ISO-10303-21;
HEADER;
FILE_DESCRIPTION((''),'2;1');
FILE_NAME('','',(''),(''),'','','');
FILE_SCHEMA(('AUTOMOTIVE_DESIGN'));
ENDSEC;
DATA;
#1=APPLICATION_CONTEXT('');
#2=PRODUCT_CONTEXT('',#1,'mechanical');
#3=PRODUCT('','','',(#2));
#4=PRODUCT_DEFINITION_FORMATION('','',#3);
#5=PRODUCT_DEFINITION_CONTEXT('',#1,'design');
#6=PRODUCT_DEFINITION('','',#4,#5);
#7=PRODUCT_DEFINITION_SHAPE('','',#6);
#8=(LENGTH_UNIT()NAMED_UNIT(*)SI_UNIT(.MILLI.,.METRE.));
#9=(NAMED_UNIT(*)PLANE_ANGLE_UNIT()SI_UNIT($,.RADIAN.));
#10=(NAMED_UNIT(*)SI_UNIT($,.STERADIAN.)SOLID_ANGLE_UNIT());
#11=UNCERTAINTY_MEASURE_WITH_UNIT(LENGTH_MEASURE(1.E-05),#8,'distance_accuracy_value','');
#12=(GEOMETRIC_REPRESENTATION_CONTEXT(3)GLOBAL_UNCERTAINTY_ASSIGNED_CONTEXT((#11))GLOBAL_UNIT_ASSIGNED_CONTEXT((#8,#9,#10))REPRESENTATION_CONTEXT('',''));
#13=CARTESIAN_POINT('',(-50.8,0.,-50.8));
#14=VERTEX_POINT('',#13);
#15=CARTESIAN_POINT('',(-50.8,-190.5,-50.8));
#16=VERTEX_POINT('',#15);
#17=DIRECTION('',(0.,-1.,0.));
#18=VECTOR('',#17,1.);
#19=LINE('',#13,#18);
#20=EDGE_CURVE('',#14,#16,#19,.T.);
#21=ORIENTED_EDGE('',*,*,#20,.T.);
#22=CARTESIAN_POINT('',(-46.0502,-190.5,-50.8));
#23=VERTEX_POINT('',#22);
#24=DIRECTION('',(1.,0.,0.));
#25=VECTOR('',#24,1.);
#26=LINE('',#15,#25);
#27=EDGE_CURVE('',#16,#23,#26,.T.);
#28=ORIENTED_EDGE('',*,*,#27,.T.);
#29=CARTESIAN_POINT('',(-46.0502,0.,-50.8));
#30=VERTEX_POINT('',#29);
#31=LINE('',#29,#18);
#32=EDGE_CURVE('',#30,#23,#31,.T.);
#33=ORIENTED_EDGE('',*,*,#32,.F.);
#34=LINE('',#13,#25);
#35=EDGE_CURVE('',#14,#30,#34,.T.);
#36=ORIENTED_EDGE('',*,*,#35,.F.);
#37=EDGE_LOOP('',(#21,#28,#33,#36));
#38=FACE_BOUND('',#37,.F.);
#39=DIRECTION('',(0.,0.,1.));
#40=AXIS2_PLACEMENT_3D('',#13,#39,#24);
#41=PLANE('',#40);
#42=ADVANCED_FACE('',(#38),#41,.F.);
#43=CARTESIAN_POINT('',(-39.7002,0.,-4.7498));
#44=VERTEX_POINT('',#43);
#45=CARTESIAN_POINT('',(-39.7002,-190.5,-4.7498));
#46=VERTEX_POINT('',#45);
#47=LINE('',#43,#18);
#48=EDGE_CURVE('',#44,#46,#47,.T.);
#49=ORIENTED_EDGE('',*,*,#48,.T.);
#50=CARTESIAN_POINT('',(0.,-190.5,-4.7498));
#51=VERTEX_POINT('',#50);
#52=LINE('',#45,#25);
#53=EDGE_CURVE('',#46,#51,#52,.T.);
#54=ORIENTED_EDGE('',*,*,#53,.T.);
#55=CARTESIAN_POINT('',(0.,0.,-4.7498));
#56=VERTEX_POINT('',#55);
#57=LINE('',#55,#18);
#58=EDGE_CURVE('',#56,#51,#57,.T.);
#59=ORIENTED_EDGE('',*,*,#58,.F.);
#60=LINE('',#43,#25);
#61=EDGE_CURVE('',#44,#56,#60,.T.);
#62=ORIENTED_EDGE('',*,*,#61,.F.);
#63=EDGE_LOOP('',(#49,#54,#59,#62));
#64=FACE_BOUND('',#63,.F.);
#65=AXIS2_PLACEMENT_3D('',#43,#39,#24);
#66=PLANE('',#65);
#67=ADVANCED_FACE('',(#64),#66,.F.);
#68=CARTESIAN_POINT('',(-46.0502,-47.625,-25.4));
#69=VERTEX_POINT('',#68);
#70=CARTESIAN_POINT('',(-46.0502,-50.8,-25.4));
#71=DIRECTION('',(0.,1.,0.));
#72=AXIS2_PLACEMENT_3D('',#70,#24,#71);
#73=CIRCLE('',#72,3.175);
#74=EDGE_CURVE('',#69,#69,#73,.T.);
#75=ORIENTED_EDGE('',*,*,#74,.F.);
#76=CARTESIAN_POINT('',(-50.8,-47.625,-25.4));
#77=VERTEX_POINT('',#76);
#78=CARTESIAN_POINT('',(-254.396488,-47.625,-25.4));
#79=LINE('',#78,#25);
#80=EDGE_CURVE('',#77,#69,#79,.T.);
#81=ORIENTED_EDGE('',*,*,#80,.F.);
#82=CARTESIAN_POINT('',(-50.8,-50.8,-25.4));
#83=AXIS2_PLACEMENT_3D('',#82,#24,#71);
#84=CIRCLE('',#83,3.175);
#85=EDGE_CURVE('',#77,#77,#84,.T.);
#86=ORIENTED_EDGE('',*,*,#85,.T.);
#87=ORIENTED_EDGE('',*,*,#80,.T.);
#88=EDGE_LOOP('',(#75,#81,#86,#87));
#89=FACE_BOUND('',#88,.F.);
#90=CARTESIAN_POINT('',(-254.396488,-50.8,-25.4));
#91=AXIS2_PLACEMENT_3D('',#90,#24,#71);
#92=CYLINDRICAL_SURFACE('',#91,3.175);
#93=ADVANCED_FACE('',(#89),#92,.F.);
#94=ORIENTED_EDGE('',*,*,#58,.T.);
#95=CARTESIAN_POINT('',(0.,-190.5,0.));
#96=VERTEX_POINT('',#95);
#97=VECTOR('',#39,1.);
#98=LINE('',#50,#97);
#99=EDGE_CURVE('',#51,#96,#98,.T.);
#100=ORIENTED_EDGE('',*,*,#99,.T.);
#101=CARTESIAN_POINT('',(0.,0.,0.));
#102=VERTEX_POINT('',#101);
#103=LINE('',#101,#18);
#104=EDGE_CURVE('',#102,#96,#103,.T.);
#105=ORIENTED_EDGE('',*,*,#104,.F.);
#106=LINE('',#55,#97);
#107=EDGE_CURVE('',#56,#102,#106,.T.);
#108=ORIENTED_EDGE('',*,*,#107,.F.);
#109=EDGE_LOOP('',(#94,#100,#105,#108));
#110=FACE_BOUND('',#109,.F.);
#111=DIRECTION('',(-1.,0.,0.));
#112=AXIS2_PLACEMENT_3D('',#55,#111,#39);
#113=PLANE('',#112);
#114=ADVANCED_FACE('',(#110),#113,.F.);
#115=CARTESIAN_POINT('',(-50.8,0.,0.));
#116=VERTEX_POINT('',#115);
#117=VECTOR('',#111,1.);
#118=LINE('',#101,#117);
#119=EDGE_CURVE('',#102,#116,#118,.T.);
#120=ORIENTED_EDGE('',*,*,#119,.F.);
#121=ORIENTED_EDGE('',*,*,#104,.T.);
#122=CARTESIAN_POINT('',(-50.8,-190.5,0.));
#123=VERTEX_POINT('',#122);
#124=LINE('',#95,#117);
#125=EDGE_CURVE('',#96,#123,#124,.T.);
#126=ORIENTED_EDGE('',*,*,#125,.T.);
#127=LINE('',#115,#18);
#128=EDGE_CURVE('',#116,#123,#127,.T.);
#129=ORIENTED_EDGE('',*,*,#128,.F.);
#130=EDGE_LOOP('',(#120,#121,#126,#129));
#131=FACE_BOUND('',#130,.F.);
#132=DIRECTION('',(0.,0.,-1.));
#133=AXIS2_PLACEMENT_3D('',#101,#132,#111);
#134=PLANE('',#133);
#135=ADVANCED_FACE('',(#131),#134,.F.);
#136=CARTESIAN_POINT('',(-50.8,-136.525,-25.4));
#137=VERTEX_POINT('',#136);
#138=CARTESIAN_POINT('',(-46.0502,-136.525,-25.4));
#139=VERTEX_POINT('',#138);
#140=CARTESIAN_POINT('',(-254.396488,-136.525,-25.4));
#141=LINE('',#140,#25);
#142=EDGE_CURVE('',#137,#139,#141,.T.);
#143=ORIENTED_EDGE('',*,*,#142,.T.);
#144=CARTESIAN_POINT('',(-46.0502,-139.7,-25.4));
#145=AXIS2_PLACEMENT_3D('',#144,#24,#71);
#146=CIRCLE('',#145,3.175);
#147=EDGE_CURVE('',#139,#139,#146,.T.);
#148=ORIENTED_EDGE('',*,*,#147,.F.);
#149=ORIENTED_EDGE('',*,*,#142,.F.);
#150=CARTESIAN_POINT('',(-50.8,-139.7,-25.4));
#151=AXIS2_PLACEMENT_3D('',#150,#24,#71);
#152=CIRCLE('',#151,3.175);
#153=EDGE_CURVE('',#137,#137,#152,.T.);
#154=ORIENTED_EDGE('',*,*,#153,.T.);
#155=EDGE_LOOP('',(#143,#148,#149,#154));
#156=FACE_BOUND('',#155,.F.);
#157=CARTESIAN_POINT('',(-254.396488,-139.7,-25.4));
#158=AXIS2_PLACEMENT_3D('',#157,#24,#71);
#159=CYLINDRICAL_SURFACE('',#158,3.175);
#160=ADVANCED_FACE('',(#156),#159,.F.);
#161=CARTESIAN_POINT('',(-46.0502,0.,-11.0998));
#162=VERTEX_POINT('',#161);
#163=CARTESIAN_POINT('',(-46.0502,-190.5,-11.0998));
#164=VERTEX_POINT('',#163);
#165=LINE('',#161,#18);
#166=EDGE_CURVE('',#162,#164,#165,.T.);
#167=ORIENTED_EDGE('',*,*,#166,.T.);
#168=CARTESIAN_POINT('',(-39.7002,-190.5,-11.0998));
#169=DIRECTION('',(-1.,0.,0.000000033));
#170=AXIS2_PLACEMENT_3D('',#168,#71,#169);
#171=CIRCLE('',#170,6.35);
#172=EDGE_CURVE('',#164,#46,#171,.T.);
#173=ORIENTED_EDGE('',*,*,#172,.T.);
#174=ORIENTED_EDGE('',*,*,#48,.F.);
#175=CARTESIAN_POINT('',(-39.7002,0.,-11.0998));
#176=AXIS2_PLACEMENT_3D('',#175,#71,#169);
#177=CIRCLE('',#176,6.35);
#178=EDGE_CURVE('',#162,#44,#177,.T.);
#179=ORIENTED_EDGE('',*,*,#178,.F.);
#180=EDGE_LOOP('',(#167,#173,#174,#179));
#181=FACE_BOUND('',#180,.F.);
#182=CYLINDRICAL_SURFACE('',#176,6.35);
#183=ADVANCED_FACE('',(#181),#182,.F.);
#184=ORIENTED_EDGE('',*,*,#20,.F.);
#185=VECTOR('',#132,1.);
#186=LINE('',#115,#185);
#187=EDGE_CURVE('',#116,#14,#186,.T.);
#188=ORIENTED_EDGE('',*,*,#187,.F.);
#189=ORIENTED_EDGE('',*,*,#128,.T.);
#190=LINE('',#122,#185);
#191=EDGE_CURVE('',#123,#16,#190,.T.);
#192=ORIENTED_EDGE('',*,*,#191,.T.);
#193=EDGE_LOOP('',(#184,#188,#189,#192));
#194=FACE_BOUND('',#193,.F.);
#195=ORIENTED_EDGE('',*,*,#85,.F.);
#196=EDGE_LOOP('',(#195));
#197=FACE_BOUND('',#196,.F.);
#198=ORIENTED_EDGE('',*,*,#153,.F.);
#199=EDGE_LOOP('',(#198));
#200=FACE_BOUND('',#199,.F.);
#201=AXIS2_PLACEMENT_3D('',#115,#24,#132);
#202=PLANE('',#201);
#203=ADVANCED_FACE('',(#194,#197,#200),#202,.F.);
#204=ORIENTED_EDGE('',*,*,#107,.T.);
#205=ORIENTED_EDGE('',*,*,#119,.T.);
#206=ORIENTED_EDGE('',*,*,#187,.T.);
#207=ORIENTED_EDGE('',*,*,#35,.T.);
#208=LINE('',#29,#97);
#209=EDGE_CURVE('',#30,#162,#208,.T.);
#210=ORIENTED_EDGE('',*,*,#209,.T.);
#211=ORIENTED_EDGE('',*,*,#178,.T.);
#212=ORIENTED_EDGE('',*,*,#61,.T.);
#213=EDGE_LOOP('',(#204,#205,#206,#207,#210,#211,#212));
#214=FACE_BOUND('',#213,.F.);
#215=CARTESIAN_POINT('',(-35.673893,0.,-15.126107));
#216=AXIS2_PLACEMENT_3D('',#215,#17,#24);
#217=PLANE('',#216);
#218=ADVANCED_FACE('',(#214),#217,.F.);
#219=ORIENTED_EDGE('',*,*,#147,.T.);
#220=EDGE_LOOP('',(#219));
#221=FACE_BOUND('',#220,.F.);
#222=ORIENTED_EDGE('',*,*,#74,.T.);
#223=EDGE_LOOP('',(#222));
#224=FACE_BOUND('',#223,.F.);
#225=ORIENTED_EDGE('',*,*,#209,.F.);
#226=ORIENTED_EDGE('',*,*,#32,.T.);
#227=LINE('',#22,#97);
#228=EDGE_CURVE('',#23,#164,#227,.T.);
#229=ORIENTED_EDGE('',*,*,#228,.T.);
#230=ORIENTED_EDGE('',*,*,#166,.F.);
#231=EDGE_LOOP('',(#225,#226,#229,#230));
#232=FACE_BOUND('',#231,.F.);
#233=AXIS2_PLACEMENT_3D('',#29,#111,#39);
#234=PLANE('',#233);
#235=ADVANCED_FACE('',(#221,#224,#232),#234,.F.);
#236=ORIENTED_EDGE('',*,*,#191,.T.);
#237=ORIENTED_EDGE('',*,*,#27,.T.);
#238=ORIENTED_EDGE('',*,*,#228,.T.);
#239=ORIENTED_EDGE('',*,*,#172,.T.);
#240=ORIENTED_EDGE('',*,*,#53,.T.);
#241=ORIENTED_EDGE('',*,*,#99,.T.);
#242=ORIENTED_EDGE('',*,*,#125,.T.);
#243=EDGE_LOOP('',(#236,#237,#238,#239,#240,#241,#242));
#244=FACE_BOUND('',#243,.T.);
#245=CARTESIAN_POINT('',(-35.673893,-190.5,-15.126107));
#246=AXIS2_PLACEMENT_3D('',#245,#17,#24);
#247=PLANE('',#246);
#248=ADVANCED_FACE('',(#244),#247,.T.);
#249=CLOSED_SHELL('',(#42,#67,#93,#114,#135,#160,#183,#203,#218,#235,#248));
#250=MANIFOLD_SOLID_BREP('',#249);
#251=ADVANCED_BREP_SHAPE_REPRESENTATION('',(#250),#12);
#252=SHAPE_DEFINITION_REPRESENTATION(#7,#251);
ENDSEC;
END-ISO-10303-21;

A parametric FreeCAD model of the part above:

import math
import FreeCAD as App
import Part
import Sketcher

V = App.Vector
Q = App.Units.Quantity

doc = App.newDocument("Part")
body = doc.addObject("PartDesign::Body", "Body")

# Sketch on XZ plane
sketch1 = body.newObject("Sketcher::SketchObject", "Sketch")
sketch1.AttachmentSupport = (doc.getObject("XZ_Plane"), [""])
sketch1.MapMode = "FlatFace"
sketch1.addGeometry([
    Part.LineSegment(V(0, -4.7, 0), V(0, 0, 0)),  # 0
    Part.LineSegment(V(0, 0, 0), V(-50.8, 0, 0)),  # 1
    Part.LineSegment(V(-50.8, 0, 0), V(-50.8, -50.8, 0)),  # 2
    Part.LineSegment(V(-50.8, -50.8, 0), V(-46.1, -50.8, 0)),  # 3
    Part.LineSegment(V(-46.1, -50.8, 0), V(-46.1, -11.1, 0)),  # 4
    Part.ArcOfCircle(Part.Circle(V(-39.7, -11.1, 0), V(0, 0, 1), 6.4), math.radians(90), math.radians(180)),  # 5
    Part.LineSegment(V(-39.7, -4.7, 0), V(0, -4.7, 0)),  # 6
], False)
sketch1.addConstraint([
    Sketcher.Constraint("Coincident", 0, 2, 1, 1),
    Sketcher.Constraint("Coincident", 1, 2, 2, 1),
    Sketcher.Constraint("Coincident", 2, 2, 3, 1),
    Sketcher.Constraint("Coincident", 3, 2, 4, 1),
    Sketcher.Constraint("Tangent", 4, 2, 5, 2),
    Sketcher.Constraint("Tangent", 5, 1, 6, 1),
    Sketcher.Constraint("Coincident", 6, 2, 0, 1),
    Sketcher.Constraint("Vertical", 0),
    Sketcher.Constraint("Horizontal", 1),
    Sketcher.Constraint("Vertical", 2),
    Sketcher.Constraint("Horizontal", 3),
    Sketcher.Constraint("Vertical", 4),
    Sketcher.Constraint("Horizontal", 6),
    Sketcher.Constraint("Coincident", 0, 2, -1, 1),
    Sketcher.Constraint("Equal", 3, 0),
    Sketcher.Constraint("Equal", 1, 2),
    Sketcher.Constraint("DistanceX", 1, 2, 1, 1, Q("2 in")),
    Sketcher.Constraint("Radius", 5, Q("0.25 in")),
    Sketcher.Constraint("DistanceX", 3, 1, 3, 2, Q("0.187 in")),
])
pad1 = body.newObject("PartDesign::Pad", "Pad")
pad1.Profile = sketch1
pad1.Length = Q("7.5 in")

# Sketch on YZ plane
sketch2 = body.newObject("Sketcher::SketchObject", "Sketch001")
sketch2.AttachmentSupport = (doc.getObject("YZ_Plane"), [""])
sketch2.MapMode = "FlatFace"
sketch2.AttachmentOffset = App.Placement(V(0, 0, -2 * 25.4), App.Rotation())
sketch2.addGeometry([
    Part.Circle(V(-50.8, -25.4, 0), V(0, 0, 1), 3.2),
    Part.Circle(V(-139.7, -25.4, 0), V(0, 0, 1), 3.2),
], False)
sketch2.addConstraint([
    Sketcher.Constraint("Equal", 0, 1),
    Sketcher.Constraint("Horizontal", 0, 3, 1, 3),
    Sketcher.Constraint("Diameter", 0, Q("0.25 in")),
    Sketcher.Constraint("DistanceX", 0, 3, -1, 1, Q("2 in")),
    Sketcher.Constraint("DistanceY", 0, 3, -1, 1, Q("1 in")),
    Sketcher.Constraint("DistanceX", 1, 3, -1, 1, Q("5.5 in")),
])
doc.recompute()
hole = body.newObject("PartDesign::Hole", "Hole")
hole.Profile = sketch2
hole.ThreadType = "None"
hole.Diameter = Q("0.25 in")
hole.DepthType = "ThroughAll"
hole.Reversed = True

doc.recompute()
